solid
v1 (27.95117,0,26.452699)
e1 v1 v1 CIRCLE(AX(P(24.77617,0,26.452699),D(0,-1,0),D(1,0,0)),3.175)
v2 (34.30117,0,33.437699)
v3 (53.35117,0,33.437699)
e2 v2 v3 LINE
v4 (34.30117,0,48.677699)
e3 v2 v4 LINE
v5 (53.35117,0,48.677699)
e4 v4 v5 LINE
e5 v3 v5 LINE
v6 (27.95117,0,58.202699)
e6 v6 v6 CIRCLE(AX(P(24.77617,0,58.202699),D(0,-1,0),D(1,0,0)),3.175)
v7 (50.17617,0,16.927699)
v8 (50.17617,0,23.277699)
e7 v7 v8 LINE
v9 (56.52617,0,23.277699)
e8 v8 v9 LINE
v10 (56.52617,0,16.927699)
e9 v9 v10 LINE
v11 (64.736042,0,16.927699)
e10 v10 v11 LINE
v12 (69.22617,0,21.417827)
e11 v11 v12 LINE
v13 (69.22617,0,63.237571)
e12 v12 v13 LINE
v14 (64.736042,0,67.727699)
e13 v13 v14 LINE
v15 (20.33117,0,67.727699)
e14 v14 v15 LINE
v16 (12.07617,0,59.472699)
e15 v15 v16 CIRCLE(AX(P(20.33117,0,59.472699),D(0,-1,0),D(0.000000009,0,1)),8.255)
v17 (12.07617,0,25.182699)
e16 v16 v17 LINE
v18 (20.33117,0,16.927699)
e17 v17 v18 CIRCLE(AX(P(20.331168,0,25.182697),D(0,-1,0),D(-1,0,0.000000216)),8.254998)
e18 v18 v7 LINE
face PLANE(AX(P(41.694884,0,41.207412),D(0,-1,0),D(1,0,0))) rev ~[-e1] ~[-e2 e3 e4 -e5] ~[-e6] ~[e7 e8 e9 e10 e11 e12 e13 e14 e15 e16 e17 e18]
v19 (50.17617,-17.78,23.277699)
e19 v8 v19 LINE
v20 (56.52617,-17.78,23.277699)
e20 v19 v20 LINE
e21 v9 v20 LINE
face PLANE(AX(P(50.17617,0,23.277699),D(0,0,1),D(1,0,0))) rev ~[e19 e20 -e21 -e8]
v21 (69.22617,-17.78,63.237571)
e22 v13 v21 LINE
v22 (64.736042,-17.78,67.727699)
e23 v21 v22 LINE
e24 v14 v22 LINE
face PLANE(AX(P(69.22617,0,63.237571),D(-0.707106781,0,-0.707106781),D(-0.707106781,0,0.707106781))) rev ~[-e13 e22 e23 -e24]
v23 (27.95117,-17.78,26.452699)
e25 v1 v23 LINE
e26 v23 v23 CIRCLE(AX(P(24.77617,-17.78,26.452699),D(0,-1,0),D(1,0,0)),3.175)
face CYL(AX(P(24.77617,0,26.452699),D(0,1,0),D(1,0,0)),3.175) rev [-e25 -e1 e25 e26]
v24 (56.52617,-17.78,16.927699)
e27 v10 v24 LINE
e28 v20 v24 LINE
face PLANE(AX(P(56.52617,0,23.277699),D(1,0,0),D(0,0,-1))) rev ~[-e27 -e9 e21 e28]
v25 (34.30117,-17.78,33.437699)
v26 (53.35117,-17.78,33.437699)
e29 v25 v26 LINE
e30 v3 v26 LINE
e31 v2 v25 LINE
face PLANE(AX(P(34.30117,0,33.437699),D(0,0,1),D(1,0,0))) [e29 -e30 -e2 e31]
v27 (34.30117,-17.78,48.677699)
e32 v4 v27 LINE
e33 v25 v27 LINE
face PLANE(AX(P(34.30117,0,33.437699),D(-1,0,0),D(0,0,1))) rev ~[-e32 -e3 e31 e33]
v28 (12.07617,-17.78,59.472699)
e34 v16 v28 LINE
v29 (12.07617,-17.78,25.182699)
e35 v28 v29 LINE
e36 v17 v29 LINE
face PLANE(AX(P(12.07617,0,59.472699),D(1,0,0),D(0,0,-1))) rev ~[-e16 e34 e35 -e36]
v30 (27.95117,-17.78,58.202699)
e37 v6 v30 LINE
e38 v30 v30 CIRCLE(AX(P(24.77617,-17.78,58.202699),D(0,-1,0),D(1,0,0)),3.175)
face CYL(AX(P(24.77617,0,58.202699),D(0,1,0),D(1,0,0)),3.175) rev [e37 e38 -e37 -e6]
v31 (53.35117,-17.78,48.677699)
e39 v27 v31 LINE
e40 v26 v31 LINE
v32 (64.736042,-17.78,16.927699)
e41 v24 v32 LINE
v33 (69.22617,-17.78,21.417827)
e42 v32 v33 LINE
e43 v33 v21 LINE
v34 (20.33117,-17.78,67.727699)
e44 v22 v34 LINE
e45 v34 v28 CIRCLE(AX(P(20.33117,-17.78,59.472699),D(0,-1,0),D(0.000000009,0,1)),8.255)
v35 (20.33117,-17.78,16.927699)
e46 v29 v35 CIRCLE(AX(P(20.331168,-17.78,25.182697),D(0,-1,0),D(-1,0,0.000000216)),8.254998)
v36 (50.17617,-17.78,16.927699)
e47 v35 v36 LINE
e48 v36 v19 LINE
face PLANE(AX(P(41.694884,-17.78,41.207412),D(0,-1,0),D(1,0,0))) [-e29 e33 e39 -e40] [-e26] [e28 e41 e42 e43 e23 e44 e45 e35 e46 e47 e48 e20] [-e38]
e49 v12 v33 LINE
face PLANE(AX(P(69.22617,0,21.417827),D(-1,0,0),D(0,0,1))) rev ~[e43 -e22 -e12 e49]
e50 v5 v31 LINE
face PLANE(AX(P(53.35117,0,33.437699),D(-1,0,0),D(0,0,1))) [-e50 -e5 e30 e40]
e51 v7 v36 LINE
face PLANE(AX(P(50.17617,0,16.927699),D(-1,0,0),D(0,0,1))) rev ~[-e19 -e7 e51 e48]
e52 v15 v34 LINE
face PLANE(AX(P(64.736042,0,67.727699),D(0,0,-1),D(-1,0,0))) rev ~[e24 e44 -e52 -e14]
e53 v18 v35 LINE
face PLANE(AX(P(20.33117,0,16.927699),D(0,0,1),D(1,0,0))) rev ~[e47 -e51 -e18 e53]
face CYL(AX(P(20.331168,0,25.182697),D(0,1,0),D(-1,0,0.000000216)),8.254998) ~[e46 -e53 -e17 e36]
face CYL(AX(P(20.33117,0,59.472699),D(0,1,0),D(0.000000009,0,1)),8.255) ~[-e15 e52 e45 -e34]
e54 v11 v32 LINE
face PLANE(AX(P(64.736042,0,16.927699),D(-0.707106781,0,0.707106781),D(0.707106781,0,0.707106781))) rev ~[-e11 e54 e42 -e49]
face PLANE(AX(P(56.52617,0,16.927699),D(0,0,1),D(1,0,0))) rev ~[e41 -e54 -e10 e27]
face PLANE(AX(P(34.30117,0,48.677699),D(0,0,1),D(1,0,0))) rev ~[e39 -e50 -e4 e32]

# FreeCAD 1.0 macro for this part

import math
import FreeCAD as App
import Part
import Sketcher
Q = App.Units.Quantity


def add_polygon(sketch, points):
    """Adds a closed chain of lines whose ends are joined by coincident constraints."""
    first, n = sketch.GeometryCount, len(points)
    for a, b in zip(points, points[1:] + points[:1]):
        sketch.addGeometry(Part.LineSegment(App.Vector(*a, 0), App.Vector(*b, 0)), False)
    for i in range(n):
        sketch.addConstraint(Sketcher.Constraint("Coincident", first + i, 2, first + (i + 1) % n, 1))

doc = App.newDocument("Part")
params = doc.addObject("Spreadsheet::Sheet", "Params")
for row, (alias, value) in enumerate([
    ("sketch1_diameter", "0.25 in"),
    ("sketch1_height", "0.6 in"),
    ("sketch1_radius", "0.3249999 in"),
    ("sketch1_width", "0.25 in"),
    ("sketch1_width2", "0.75 in"),
    ("pad1_length", "0.7 in"),
], start=1):
    params.set(f"A{row}", alias)
    params.set(f"B{row}", "=" + value)
    params.setAlias(f"B{row}", alias)

body = doc.addObject("PartDesign::Body", "Body")

sketch1 = body.newObject("Sketcher::SketchObject", "Sketch")
sketch1.AttachmentSupport = (doc.getObject("XZ_Plane"), [""])
sketch1.MapMode = "FlatFace"
sketch1.addGeometry(Part.LineSegment(App.Vector(12.07617, 59.472699, 0), App.Vector(12.07617, 25.182699, 0)), False)
sketch1.addGeometry(Part.ArcOfCircle(Part.Circle(App.Vector(20.331168, 25.182697, 0), App.Vector(0, 0, 1), 8.254998), math.radians(179.999988), math.radians(270.000012)), False)
sketch1.addGeometry(Part.LineSegment(App.Vector(20.33117, 16.927699, 0), App.Vector(50.17617, 16.927699, 0)), False)
sketch1.addGeometry(Part.LineSegment(App.Vector(50.17617, 16.927699, 0), App.Vector(50.17617, 23.277699, 0)), False)
sketch1.addGeometry(Part.LineSegment(App.Vector(50.17617, 23.277699, 0), App.Vector(56.52617, 23.277699, 0)), False)
sketch1.addGeometry(Part.LineSegment(App.Vector(56.52617, 23.277699, 0), App.Vector(56.52617, 16.927699, 0)), False)
sketch1.addGeometry(Part.LineSegment(App.Vector(56.52617, 16.927699, 0), App.Vector(64.736042, 16.927699, 0)), False)
sketch1.addGeometry(Part.LineSegment(App.Vector(64.736042, 16.927699, 0), App.Vector(69.22617, 21.417827, 0)), False)
sketch1.addGeometry(Part.LineSegment(App.Vector(69.22617, 21.417827, 0), App.Vector(69.22617, 63.237571, 0)), False)
sketch1.addGeometry(Part.LineSegment(App.Vector(69.22617, 63.237571, 0), App.Vector(64.736042, 67.727699, 0)), False)
sketch1.addGeometry(Part.LineSegment(App.Vector(64.736042, 67.727699, 0), App.Vector(20.33117, 67.727699, 0)), False)
sketch1.addGeometry(Part.ArcOfCircle(Part.Circle(App.Vector(20.33117, 59.472699, 0), App.Vector(0, 0, 1), 8.255), math.radians(89.999999), math.radians(180.000001)), False)
sketch1.addGeometry(Part.Circle(App.Vector(24.77617, 26.452699, 0), App.Vector(0, 0, 1), 3.175), False)
add_polygon(sketch1, [(53.35117, 33.437699), (34.30117, 33.437699), (34.30117, 48.677699), (53.35117, 48.677699)])
sketch1.addGeometry(Part.Circle(App.Vector(24.77617, 58.202699, 0), App.Vector(0, 0, 1), 3.175), False)
sketch1.addConstraint([
    Sketcher.Constraint("Tangent", 0, 2, 1, 1),
    Sketcher.Constraint("Tangent", 1, 2, 2, 1),
    Sketcher.Constraint("Coincident", 2, 2, 3, 1),
    Sketcher.Constraint("Coincident", 3, 2, 4, 1),
    Sketcher.Constraint("Coincident", 4, 2, 5, 1),
    Sketcher.Constraint("Coincident", 5, 2, 6, 1),
    Sketcher.Constraint("Coincident", 6, 2, 7, 1),
    Sketcher.Constraint("Coincident", 7, 2, 8, 1),
    Sketcher.Constraint("Coincident", 8, 2, 9, 1),
    Sketcher.Constraint("Coincident", 9, 2, 10, 1),
    Sketcher.Constraint("Tangent", 10, 2, 11, 1),
    Sketcher.Constraint("Tangent", 11, 2, 0, 1),
    Sketcher.Constraint("Vertical", 0),
    Sketcher.Constraint("Horizontal", 2),
    Sketcher.Constraint("Vertical", 3),
    Sketcher.Constraint("Horizontal", 4),
    Sketcher.Constraint("Vertical", 5),
    Sketcher.Constraint("Horizontal", 6),
    Sketcher.Constraint("Vertical", 8),
    Sketcher.Constraint("Horizontal", 10),
    Sketcher.Constraint("Horizontal", 13),
    Sketcher.Constraint("Vertical", 14),
    Sketcher.Constraint("Horizontal", 15),
    Sketcher.Constraint("Vertical", 16),
    Sketcher.Constraint("Equal", 1, 11),
    Sketcher.Constraint("Equal", 12, 17),
    Sketcher.Constraint("Perpendicular", 7, 9),
    Sketcher.Constraint("Horizontal", 2, 2, 5, 2),
    Sketcher.Constraint("Vertical", 12, 3, 17, 3),
    Sketcher.Constraint("Vertical", 6, 2, 9, 2),
    Sketcher.Constraint("Equal", 4, 3),
    Sketcher.Constraint("Equal", 7, 9),
    Sketcher.Constraint("Diameter", 12, Q("0.25 in")),
    Sketcher.Constraint("DistanceY", 14, 1, 14, 2, Q("0.6 in")),
    Sketcher.Constraint("Radius", 1, Q("0.3249999 in")),
    Sketcher.Constraint("DistanceX", 12, 3, 2, 2, Q("1 in")),
    Sketcher.Constraint("DistanceY", 3, 2, 15, 2, Q("1 in")),
    Sketcher.Constraint("DistanceX", 4, 1, 4, 2, Q("0.25 in")),
    Sketcher.Constraint("DistanceX", 13, 2, 13, 1, Q("0.75 in")),
    Sketcher.Constraint("DistanceY", 0, 2, 0, 1, Q("1.35 in")),
    Sketcher.Constraint("DistanceY", 12, 3, 11, 3, Q("1.3 in")),
    Sketcher.Constraint("DistanceY", 1, 3, 17, 3, Q("1.3000001 in")),
    Sketcher.Constraint("DistanceX", 0, 2, 12, 3, Q("0.5 in")),
    Sketcher.Constraint("DistanceX", 4, 2, 7, 2, Q("0.5 in")),
    Sketcher.Constraint("Distance", 7, Q("0.25 in")),
    Sketcher.Constraint("DistanceX", 1, 3, 13, 2, Q("0.5500001 in")),
    Sketcher.Constraint("DistanceY", -1, 1, 11, 3, Q("59.472699 mm")),
    Sketcher.Constraint("DistanceX", -1, 1, 1, 3, Q("20.331168 mm")),
])
sketch1.setExpression("Constraints[36]", "Params.sketch1_diameter")
sketch1.setExpression("Constraints[37]", "Params.sketch1_height")
sketch1.setExpression("Constraints[38]", "Params.sketch1_radius")
sketch1.setExpression("Constraints[41]", "Params.sketch1_width")
sketch1.setExpression("Constraints[42]", "Params.sketch1_width2")
pad1 = body.newObject("PartDesign::Pad", "Pad")
pad1.Profile = sketch1
pad1.setExpression("Length", "Params.pad1_length")

doc.recompute()
